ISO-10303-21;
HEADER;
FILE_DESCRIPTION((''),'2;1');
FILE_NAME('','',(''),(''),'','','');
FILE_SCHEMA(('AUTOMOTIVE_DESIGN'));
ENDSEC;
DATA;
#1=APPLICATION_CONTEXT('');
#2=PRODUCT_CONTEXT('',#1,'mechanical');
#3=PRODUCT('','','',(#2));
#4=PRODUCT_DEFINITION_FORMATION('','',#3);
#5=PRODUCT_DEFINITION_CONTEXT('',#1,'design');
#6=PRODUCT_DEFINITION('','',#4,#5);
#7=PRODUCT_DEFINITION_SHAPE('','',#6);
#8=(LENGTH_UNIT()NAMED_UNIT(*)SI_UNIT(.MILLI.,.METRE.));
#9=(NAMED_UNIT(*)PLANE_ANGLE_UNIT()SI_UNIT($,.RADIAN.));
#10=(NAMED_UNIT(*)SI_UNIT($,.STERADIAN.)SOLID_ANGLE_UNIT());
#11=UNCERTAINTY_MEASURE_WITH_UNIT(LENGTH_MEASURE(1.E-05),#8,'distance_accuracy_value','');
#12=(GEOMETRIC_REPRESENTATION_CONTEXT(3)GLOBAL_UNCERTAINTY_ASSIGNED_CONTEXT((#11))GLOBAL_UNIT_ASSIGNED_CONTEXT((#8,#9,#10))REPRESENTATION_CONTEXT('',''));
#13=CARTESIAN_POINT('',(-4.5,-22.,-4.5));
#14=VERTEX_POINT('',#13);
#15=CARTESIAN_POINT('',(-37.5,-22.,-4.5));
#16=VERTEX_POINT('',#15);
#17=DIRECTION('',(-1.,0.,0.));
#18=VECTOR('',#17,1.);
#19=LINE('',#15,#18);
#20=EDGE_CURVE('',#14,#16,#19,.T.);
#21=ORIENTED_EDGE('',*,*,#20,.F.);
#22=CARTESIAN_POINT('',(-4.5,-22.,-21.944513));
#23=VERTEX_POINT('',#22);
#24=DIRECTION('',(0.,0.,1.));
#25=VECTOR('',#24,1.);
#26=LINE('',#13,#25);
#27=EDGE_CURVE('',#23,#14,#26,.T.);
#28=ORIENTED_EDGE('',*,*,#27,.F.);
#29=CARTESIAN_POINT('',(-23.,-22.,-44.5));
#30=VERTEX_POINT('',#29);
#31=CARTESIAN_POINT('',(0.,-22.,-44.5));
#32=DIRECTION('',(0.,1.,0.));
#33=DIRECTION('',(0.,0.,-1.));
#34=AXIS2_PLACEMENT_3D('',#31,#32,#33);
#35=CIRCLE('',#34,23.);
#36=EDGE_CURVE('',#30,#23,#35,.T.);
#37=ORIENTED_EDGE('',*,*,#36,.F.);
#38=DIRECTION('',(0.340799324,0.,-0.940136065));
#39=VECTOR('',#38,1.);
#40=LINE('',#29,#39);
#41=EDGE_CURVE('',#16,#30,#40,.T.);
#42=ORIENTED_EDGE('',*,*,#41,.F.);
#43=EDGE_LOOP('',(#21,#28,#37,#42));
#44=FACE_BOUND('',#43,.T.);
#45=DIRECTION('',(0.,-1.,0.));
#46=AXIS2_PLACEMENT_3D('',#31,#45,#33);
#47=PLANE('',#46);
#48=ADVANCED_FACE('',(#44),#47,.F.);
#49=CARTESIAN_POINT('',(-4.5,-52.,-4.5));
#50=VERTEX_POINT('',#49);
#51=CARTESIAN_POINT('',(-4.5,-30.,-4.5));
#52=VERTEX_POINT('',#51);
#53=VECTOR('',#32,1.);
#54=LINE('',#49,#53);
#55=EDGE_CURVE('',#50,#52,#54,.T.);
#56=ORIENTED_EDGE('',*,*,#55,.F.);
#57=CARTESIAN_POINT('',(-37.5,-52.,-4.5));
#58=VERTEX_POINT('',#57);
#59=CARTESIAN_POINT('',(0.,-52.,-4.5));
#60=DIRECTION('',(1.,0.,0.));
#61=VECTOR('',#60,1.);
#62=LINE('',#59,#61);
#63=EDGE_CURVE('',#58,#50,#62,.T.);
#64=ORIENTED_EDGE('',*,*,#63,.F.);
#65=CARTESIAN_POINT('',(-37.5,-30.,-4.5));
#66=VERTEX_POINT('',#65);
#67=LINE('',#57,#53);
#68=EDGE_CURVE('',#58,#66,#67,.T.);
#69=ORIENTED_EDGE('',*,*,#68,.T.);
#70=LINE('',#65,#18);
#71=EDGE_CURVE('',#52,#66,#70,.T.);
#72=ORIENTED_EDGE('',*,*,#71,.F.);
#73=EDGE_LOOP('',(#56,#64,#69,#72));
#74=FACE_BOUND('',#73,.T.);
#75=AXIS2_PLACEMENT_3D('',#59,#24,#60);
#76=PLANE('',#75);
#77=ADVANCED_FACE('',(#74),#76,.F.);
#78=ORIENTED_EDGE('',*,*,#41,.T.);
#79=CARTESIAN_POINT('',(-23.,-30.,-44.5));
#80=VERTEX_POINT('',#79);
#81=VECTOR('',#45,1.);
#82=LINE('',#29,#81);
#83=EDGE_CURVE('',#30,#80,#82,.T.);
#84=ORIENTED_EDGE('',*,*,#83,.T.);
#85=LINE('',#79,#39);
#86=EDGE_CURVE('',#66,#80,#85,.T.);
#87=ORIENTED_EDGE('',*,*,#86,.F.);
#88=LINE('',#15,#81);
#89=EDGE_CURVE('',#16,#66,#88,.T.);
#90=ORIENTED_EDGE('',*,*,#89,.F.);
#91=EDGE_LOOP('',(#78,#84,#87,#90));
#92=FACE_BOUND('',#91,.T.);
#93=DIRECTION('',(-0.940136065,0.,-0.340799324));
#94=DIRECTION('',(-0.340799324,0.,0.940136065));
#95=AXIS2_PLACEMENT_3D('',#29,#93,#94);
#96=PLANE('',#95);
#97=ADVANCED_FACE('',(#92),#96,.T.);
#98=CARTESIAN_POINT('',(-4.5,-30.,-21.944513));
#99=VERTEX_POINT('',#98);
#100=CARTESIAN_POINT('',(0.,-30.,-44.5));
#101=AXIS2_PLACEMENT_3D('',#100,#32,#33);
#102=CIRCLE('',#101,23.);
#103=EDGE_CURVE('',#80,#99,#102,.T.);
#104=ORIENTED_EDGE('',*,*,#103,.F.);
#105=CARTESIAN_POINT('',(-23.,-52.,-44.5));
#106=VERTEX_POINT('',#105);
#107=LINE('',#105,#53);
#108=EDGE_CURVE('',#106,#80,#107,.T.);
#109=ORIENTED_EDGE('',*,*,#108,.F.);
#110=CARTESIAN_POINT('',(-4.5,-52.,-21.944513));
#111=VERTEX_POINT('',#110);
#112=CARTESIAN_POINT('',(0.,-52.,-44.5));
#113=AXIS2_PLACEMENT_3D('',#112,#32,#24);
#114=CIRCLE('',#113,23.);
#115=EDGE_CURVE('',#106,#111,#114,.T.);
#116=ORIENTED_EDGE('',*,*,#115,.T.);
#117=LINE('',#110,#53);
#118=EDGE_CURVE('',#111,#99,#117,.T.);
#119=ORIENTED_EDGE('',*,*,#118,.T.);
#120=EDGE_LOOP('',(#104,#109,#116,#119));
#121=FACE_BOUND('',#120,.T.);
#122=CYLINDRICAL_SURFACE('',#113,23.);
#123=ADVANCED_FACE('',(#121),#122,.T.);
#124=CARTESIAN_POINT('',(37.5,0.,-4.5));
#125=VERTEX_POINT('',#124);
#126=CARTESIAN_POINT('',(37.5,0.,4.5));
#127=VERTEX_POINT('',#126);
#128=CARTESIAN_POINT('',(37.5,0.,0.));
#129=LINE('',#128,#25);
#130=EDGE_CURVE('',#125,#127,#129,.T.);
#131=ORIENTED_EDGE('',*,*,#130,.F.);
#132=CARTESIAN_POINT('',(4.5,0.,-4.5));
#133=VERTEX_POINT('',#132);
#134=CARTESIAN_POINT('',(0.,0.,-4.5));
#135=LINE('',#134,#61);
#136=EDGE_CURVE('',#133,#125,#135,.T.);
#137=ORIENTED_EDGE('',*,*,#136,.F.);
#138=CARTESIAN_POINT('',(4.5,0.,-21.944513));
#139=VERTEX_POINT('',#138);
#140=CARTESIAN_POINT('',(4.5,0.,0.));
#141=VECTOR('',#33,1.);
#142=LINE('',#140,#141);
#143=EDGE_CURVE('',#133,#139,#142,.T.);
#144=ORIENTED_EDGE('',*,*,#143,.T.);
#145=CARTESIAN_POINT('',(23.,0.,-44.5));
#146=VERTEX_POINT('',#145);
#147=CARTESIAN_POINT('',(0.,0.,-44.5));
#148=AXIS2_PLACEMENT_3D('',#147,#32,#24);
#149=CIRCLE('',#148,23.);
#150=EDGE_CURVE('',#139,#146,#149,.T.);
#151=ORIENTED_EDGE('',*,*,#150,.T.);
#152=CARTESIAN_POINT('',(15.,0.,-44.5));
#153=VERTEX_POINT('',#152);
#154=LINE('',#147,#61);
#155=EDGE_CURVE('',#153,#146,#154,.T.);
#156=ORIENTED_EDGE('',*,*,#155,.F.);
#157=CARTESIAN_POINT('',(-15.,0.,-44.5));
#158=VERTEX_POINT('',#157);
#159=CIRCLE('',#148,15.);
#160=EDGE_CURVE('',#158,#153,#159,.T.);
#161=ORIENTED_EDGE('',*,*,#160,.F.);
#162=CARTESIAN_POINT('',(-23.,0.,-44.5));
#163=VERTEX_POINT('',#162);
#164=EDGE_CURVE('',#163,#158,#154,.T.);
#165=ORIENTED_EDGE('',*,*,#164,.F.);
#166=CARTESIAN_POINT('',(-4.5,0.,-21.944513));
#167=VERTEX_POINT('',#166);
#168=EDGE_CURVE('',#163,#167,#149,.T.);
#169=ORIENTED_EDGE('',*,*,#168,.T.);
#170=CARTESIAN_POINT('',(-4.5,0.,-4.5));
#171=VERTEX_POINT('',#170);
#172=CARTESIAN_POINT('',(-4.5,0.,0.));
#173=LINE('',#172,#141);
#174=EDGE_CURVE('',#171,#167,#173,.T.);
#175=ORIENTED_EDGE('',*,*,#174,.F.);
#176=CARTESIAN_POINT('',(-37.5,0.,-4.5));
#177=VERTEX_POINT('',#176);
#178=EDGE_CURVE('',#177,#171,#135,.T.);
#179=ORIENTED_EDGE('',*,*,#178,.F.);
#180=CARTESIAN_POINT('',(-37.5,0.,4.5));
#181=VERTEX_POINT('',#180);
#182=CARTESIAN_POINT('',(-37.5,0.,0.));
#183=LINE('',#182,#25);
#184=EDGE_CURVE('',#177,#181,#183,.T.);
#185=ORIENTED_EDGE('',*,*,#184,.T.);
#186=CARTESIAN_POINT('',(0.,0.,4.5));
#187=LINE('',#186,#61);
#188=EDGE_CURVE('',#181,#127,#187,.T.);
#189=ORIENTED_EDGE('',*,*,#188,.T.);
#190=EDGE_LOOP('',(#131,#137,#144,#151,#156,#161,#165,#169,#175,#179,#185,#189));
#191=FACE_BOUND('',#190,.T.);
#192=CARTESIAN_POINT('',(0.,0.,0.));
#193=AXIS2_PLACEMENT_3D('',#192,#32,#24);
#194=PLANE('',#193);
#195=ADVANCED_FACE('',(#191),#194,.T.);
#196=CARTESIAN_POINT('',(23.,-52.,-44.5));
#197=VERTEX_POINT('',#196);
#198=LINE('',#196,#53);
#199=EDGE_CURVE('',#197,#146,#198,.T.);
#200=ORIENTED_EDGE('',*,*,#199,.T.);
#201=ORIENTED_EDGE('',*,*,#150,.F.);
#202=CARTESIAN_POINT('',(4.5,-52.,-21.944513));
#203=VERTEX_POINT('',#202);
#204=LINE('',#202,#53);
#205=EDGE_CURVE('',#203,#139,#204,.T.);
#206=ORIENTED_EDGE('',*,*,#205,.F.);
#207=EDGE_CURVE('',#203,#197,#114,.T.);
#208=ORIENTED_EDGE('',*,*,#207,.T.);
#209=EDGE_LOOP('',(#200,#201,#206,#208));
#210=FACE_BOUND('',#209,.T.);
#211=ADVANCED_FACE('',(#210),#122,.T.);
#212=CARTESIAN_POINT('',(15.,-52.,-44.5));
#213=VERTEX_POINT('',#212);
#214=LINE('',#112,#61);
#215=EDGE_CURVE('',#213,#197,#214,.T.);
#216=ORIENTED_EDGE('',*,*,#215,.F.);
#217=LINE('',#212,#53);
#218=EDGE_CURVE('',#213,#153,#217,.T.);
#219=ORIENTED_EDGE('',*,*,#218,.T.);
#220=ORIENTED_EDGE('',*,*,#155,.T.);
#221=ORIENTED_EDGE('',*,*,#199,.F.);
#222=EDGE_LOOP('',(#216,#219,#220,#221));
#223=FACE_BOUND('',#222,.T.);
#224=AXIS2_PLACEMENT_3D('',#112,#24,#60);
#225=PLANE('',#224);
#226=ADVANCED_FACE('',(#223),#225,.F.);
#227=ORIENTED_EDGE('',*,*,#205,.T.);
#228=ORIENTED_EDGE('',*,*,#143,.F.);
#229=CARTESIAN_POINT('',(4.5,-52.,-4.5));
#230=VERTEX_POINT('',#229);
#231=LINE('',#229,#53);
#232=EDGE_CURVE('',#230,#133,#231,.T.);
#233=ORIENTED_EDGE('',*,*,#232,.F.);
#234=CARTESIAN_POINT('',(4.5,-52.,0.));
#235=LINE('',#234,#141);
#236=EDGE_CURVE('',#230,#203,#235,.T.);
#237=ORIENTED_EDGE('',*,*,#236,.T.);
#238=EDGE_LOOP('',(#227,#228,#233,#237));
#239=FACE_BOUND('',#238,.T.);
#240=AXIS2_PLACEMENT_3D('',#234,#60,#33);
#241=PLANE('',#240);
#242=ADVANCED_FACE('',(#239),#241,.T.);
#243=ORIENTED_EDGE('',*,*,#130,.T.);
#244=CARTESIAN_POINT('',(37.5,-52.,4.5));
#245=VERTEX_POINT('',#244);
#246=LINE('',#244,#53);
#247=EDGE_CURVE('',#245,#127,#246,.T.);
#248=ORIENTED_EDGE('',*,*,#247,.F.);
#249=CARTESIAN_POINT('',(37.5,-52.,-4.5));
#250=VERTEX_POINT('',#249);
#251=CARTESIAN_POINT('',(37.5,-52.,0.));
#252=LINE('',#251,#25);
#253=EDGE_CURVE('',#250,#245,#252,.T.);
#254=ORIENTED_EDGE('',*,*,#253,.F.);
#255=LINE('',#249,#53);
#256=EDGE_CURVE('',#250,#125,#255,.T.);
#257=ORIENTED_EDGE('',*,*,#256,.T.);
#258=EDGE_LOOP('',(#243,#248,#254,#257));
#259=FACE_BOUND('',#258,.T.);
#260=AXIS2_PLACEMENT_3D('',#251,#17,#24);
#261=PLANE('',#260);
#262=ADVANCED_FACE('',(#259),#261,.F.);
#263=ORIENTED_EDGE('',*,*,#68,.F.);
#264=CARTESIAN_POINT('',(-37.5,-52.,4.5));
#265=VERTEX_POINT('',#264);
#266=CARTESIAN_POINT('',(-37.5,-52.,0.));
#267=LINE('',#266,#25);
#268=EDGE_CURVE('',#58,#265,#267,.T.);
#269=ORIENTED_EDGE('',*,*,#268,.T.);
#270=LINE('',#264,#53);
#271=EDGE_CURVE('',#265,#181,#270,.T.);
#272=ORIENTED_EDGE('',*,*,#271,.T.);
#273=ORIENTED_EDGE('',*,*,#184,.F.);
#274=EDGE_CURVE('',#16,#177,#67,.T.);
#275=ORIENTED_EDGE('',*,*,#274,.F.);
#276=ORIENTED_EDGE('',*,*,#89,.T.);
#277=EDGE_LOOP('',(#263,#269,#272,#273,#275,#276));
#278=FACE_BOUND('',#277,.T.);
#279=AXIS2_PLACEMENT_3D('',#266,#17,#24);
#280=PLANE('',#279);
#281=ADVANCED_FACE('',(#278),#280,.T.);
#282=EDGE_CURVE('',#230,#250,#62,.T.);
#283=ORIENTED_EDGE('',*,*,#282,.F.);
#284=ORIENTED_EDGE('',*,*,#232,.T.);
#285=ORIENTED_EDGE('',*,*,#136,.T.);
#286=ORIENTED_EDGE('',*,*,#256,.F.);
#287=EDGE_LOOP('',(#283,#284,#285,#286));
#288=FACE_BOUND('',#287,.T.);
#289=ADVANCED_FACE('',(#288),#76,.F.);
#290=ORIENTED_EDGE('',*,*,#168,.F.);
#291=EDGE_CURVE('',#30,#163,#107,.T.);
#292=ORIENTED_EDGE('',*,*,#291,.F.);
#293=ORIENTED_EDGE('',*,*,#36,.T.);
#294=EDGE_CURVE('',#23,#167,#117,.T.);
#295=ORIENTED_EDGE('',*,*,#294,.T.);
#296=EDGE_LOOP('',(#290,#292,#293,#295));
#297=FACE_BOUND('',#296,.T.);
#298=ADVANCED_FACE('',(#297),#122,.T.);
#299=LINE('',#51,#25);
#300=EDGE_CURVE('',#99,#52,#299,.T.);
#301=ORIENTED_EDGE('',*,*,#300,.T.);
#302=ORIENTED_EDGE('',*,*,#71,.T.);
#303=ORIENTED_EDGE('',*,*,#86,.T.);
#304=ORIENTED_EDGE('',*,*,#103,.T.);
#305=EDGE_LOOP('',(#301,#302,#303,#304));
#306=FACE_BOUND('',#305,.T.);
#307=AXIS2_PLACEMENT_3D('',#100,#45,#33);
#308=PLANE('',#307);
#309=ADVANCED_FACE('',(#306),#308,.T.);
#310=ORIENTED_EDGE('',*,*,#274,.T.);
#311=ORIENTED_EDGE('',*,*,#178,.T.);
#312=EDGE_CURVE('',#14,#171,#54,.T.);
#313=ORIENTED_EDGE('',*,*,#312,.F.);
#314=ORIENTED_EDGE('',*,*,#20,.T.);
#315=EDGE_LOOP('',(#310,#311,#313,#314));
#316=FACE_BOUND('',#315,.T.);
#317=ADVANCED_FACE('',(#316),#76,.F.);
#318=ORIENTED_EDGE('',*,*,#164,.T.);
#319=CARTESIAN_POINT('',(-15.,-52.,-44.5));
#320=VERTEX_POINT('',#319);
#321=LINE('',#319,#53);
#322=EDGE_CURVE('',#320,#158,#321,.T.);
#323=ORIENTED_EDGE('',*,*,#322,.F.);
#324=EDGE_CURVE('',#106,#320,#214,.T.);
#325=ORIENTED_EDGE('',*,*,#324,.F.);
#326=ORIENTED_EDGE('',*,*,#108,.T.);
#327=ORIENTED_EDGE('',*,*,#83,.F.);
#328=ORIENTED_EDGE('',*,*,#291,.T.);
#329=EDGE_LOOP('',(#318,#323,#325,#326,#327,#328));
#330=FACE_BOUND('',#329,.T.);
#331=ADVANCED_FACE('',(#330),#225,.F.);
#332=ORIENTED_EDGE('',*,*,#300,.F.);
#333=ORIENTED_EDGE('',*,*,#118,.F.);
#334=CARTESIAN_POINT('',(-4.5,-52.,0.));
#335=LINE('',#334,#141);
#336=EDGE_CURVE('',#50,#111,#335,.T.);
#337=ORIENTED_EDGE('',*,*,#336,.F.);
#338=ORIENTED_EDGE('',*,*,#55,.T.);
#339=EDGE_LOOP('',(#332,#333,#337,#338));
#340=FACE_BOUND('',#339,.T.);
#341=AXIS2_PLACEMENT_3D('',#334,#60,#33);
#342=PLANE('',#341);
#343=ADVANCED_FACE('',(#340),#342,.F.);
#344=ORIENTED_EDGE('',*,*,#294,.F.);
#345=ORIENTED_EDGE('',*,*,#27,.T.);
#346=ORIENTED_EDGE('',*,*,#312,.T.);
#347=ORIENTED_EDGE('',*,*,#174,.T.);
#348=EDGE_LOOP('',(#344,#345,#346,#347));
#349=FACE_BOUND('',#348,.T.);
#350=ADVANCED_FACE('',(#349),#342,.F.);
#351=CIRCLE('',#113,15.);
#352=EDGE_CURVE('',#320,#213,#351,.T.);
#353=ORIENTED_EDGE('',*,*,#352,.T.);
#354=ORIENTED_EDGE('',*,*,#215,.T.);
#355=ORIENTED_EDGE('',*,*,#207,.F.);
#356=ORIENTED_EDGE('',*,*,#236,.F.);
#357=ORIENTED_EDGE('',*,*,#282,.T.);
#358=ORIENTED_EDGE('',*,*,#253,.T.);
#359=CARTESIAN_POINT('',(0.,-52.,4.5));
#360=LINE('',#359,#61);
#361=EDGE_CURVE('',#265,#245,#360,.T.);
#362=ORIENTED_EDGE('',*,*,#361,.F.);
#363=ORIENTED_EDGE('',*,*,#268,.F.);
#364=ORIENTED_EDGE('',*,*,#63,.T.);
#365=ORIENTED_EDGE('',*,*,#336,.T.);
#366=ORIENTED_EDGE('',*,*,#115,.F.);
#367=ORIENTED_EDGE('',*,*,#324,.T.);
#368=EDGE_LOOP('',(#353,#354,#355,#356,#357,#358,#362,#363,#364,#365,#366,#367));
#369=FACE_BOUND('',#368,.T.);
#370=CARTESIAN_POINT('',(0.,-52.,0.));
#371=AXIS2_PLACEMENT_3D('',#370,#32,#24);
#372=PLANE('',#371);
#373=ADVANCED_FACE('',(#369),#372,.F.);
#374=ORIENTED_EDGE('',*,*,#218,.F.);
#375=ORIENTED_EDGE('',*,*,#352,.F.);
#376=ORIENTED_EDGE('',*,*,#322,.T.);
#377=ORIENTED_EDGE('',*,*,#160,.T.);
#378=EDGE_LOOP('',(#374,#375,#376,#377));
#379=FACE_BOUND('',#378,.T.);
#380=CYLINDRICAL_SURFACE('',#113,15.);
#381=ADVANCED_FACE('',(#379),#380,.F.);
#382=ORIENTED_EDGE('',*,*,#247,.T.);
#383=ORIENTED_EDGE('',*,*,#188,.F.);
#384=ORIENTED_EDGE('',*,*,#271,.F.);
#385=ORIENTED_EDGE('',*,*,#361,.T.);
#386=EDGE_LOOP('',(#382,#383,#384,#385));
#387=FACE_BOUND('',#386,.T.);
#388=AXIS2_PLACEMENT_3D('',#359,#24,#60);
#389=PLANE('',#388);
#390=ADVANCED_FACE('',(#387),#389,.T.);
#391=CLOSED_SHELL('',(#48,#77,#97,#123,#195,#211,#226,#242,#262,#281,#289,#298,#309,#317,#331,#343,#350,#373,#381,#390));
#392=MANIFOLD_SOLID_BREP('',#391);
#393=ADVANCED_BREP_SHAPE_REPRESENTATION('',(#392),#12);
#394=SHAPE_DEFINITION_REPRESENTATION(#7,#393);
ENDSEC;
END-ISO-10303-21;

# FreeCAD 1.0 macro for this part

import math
import FreeCAD as App
import Part
import Sketcher

doc = App.newDocument("Part")
body = doc.addObject("PartDesign::Body", "Body")

sketch1 = doc.addObject("Sketcher::SketchObject", "Sketch")
body.addObject(sketch1)
sketch1.AttachmentSupport = (doc.XZ_Plane, [""])
sketch1.MapMode = "FlatFace"
sketch1.addGeometry([
    Part.LineSegment(App.Vector(4, -4, 0), App.Vector(4, -22, 0)),
    Part.ArcOfCircle(Part.Circle(App.Vector(0, -44, 0), App.Vector(0, 0, 1), 23), math.radians(0), math.radians(79)),
    Part.LineSegment(App.Vector(23, -44, 0), App.Vector(15, -44, 0)),
    Part.ArcOfCircle(Part.Circle(App.Vector(0, -44, 0), App.Vector(0, 0, 1), 15), math.radians(0), math.radians(180)),
    Part.LineSegment(App.Vector(-15, -44, 0), App.Vector(-23, -44, 0)),
    Part.ArcOfCircle(Part.Circle(App.Vector(0, -44, 0), App.Vector(0, 0, 1), 23), math.radians(101), math.radians(180)),
    Part.LineSegment(App.Vector(-4, -22, 0), App.Vector(-4, -4, 0)),
    Part.LineSegment(App.Vector(-4, -4, 0), App.Vector(-38, -4, 0)),
    Part.LineSegment(App.Vector(-38, -4, 0), App.Vector(-38, 4, 0)),
    Part.LineSegment(App.Vector(-38, 4, 0), App.Vector(38, 4, 0)),
    Part.LineSegment(App.Vector(38, 4, 0), App.Vector(38, -4, 0)),
    Part.LineSegment(App.Vector(38, -4, 0), App.Vector(4, -4, 0)),
], False)
sketch1.addConstraint([
    Sketcher.Constraint("Coincident", 0, 2, 1, 2),
    Sketcher.Constraint("Coincident", 1, 1, 2, 1),
    Sketcher.Constraint("Coincident", 2, 2, 3, 1),
    Sketcher.Constraint("Coincident", 3, 2, 4, 1),
    Sketcher.Constraint("Coincident", 4, 2, 5, 2),
    Sketcher.Constraint("Coincident", 5, 1, 6, 1),
    Sketcher.Constraint("Coincident", 6, 2, 7, 1),
    Sketcher.Constraint("Coincident", 7, 2, 8, 1),
    Sketcher.Constraint("Coincident", 8, 2, 9, 1),
    Sketcher.Constraint("Coincident", 9, 2, 10, 1),
    Sketcher.Constraint("Coincident", 10, 2, 11, 1),
    Sketcher.Constraint("Coincident", 11, 2, 0, 1),
    Sketcher.Constraint("Vertical", 0),
    Sketcher.Constraint("Horizontal", 2),
    Sketcher.Constraint("Horizontal", 4),
    Sketcher.Constraint("Vertical", 6),
    Sketcher.Constraint("Horizontal", 7),
    Sketcher.Constraint("Vertical", 8),
    Sketcher.Constraint("Horizontal", 9),
    Sketcher.Constraint("Vertical", 10),
    Sketcher.Constraint("Horizontal", 11),
    Sketcher.Constraint("Coincident", 3, 3, 1, 3),
    Sketcher.Constraint("Coincident", 5, 3, 1, 3),
    Sketcher.Constraint("Equal", 1, 5),
    Sketcher.Constraint("Symmetric", 7, 2, 9, 2, -1, 1),
    Sketcher.Constraint("Symmetric", 2, 2, 3, 2, -2),
    Sketcher.Constraint("Symmetric", 6, 2, 11, 2, -2),
    Sketcher.Constraint("Horizontal", 5, 3, 1, 1),
    Sketcher.Constraint("Radius", 1, 23.0),
    Sketcher.Constraint("Radius", 3, 15.0),
    Sketcher.Constraint("DistanceX", 7, 2, 7, 1, 33.0),
    Sketcher.Constraint("DistanceX", 9, 1, 9, 2, 75.0),
    Sketcher.Constraint("DistanceY", 8, 1, 8, 2, 9.0),
    Sketcher.Constraint("DistanceY", 5, 3, 6, 2, 40.0),
])
pad1 = doc.addObject("PartDesign::Pad", "Pad")
body.addObject(pad1)
pad1.Profile = sketch1
pad1.Length = 52

sketch2 = doc.addObject("Sketcher::SketchObject", "Sketch001")
body.addObject(sketch2)
sketch2.AttachmentSupport = (doc.XZ_Plane, [""])
sketch2.MapMode = "FlatFace"
sketch2.AttachmentOffset = App.Placement(App.Vector(0, 0, 30), App.Rotation())
sketch2.addGeometry([
    Part.LineSegment(App.Vector(-38, -4, 0), App.Vector(-23, -44, 0)),
    Part.ArcOfCircle(Part.Circle(App.Vector(0, -44, 0), App.Vector(0, 0, 1), 23), math.radians(101), math.radians(180)),
    Part.LineSegment(App.Vector(-4, -22, 0), App.Vector(-4, -4, 0)),
    Part.LineSegment(App.Vector(-4, -4, 0), App.Vector(-38, -4, 0)),
], False)
sketch2.addConstraint([
    Sketcher.Constraint("Coincident", 0, 2, 1, 2),
    Sketcher.Constraint("Coincident", 1, 1, 2, 1),
    Sketcher.Constraint("Coincident", 2, 2, 3, 1),
    Sketcher.Constraint("Coincident", 3, 2, 0, 1),
    Sketcher.Constraint("Vertical", 2),
    Sketcher.Constraint("Horizontal", 3),
    Sketcher.Constraint("PointOnObject", 1, 3, -2),
    Sketcher.Constraint("Horizontal", 1, 3, 0, 2),
    Sketcher.Constraint("Radius", 1, 23.0),
    Sketcher.Constraint("DistanceX", 3, 2, 3, 1, 33.0),
    Sketcher.Constraint("DistanceY", 1, 3, 2, 2, 40.0),
    Sketcher.Constraint("DistanceY", 1, 3, -1, 1, 44.5),
    Sketcher.Constraint("DistanceX", 1, 1, -1, 1, 4.5),
])
pad2 = doc.addObject("PartDesign::Pad", "Pad001")
body.addObject(pad2)
pad2.Profile = sketch2
pad2.Length = 8
pad2.Reversed = True

doc.recompute()
